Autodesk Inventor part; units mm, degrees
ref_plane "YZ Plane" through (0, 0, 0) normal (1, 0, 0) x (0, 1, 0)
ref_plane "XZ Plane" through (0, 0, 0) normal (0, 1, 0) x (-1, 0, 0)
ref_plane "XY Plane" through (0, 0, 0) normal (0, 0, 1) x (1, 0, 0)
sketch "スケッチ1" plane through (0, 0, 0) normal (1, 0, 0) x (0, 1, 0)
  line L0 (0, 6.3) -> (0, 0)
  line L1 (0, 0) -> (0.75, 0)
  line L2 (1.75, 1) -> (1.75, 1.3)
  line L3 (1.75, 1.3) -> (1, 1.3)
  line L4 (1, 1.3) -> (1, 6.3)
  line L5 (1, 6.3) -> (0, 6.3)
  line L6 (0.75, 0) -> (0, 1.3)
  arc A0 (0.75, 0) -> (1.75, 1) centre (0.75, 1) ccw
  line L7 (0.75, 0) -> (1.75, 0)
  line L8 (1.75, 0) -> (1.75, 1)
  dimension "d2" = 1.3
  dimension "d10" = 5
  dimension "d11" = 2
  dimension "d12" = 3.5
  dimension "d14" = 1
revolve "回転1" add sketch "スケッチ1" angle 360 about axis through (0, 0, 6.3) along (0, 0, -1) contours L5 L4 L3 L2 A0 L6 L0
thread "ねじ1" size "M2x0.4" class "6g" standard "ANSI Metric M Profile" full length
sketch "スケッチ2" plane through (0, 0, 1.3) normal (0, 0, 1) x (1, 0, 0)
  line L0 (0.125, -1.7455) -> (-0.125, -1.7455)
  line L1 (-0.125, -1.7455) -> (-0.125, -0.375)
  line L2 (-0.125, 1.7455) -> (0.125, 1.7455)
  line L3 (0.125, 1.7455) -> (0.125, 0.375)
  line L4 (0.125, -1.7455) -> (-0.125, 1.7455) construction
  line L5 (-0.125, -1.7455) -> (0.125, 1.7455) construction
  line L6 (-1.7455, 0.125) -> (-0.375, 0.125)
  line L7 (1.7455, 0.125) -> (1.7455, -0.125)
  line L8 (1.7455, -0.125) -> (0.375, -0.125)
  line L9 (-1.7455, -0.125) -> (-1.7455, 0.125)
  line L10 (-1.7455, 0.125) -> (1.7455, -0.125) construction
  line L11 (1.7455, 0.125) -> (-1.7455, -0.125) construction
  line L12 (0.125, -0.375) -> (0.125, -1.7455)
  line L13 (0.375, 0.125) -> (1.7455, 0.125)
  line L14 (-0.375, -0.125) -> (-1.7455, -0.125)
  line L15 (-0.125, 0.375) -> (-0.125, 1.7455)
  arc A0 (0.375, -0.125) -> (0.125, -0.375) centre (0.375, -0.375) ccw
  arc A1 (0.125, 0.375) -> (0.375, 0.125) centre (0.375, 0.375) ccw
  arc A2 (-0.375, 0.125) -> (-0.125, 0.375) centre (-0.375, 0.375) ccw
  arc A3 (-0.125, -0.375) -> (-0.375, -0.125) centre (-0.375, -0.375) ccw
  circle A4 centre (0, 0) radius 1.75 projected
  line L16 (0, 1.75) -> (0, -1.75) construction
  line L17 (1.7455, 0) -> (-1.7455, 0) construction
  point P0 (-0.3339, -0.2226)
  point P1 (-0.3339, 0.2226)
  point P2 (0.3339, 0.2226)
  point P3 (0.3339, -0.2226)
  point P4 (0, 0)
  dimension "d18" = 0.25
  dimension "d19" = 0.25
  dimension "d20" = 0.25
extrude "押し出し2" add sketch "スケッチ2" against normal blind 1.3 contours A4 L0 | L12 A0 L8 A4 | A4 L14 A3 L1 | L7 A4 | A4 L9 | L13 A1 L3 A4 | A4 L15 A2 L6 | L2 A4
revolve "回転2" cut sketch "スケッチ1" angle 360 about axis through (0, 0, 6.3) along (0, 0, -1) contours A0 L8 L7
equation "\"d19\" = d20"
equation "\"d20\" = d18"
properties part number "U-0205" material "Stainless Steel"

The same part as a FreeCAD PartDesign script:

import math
import FreeCAD as App
import Part
import Sketcher

V = App.Vector
Q = App.Units.Quantity

doc = App.newDocument("Part")
params = doc.addObject("Spreadsheet::Sheet", "Params")
for row, (alias, value) in enumerate([
    ("sketch1_radius", "1 mm"),
    ("sketch1_width", "1 mm"),
    ("sketch1_height", "5 mm"),
    ("sketch1_width2", "0.75 mm"),
    ("revolution_angle", "360 deg"),
    ("sketch2_radius", "0.25 mm"),
    ("sketch2_width", "0.25 mm"),
    ("sketch2_radius2", "1.75 mm"),
    ("pad1_length", "1.3 mm"),
    ("sketch3_radius", "1 mm"),
    ("groove_angle", "360 deg"),
], start=1):
    params.set(f"A{row}", alias)
    params.set(f"B{row}", "=" + value)
    params.setAlias(f"B{row}", alias)

body = doc.addObject("PartDesign::Body", "Body")

sketch1 = body.newObject("Sketcher::SketchObject", "Sketch")
sketch1.AttachmentSupport = (doc.getObject("YZ_Plane"), [""])
sketch1.MapMode = "FlatFace"
sketch1.addGeometry([
    Part.LineSegment(V(1, 6.3, 0), V(0, 6.3, 0)),
    Part.LineSegment(V(0, 6.3, 0), V(0, 1.3, 0)),
    Part.LineSegment(V(0, 1.3, 0), V(0.75, 0, 0)),
    Part.ArcOfCircle(Part.Circle(V(0.75, 1, 0), V(0, 0, 1), 1), math.radians(-90), math.radians(0)),
    Part.LineSegment(V(1.75, 1, 0), V(1.75, 1.3, 0)),
    Part.LineSegment(V(1.75, 1.3, 0), V(1, 1.3, 0)),
    Part.LineSegment(V(1, 1.3, 0), V(1, 6.3, 0)),
], False)
sketch1.addConstraint([
    Sketcher.Constraint("Coincident", 0, 2, 1, 1),
    Sketcher.Constraint("Coincident", 1, 2, 2, 1),
    Sketcher.Constraint("Coincident", 2, 2, 3, 1),
    Sketcher.Constraint("Tangent", 3, 2, 4, 1),
    Sketcher.Constraint("Coincident", 4, 2, 5, 1),
    Sketcher.Constraint("Coincident", 5, 2, 6, 1),
    Sketcher.Constraint("Coincident", 6, 2, 0, 1),
    Sketcher.Constraint("Horizontal", 0),
    Sketcher.Constraint("Vertical", 1),
    Sketcher.Constraint("Vertical", 4),
    Sketcher.Constraint("Horizontal", 5),
    Sketcher.Constraint("Vertical", 6),
    Sketcher.Constraint("PointOnObject", 0, 2, -2),
    Sketcher.Constraint("PointOnObject", 2, 2, -1),
    Sketcher.Constraint("Horizontal", 1, 2, 4, 2),
    Sketcher.Constraint("Vertical", 3, 3, 2, 2),
    Sketcher.Constraint("Radius", 3, Q("1 mm")),
    Sketcher.Constraint("DistanceX", 0, 2, 0, 1, Q("1 mm")),
    Sketcher.Constraint("DistanceY", 1, 2, 1, 1, Q("5 mm")),
    Sketcher.Constraint("DistanceY", -1, 1, 1, 2, Q("1.3 mm")),
    Sketcher.Constraint("DistanceX", 5, 2, 5, 1, Q("0.75 mm")),
])
sketch1.setExpression("Constraints[16]", "Params.sketch1_radius")
sketch1.setExpression("Constraints[17]", "Params.sketch1_width")
sketch1.setExpression("Constraints[18]", "Params.sketch1_height")
sketch1.setExpression("Constraints[20]", "Params.sketch1_width2")
revolution = body.newObject("PartDesign::Revolution", "Revolution")
revolution.Profile = sketch1
revolution.ReferenceAxis = (sketch1, ["V_Axis"])
revolution.setExpression("Angle", "Params.revolution_angle")

sketch2 = body.newObject("Sketcher::SketchObject", "Sketch001")
sketch2.AttachmentSupport = (doc.getObject("XY_Plane"), [""])
sketch2.MapMode = "FlatFace"
sketch2.AttachmentOffset = App.Placement(V(0, 0, 1.3), App.Rotation())
sketch2.addGeometry([
    Part.ArcOfCircle(Part.Circle(V(0, 0, 0), V(0, 0, 1), 1.75), math.radians(-94.096114), math.radians(-85.903886)),
    Part.LineSegment(V(-0.125, -1.7455, 0), V(0.125, -1.7455, 0)),
    Part.LineSegment(V(0.125, -0.375, 0), V(0.125, -1.7455, 0)),
    Part.ArcOfCircle(Part.Circle(V(0, 0, 0), V(0, 0, 1), 1.75), math.radians(-85.903886), math.radians(-4.096114)),
    Part.LineSegment(V(1.7455, -0.125, 0), V(0.375, -0.125, 0)),
    Part.ArcOfCircle(Part.Circle(V(0.375, -0.375, 0), V(0, 0, 1), 0.25), math.radians(90), math.radians(180)),
    Part.ArcOfCircle(Part.Circle(V(0, 0, 0), V(0, 0, 1), 1.75), math.radians(-175.903886), math.radians(-94.096114)),
    Part.LineSegment(V(-0.125, -1.7455, 0), V(-0.125, -0.375, 0)),
    Part.ArcOfCircle(Part.Circle(V(-0.375, -0.375, 0), V(0, 0, 1), 0.25), math.radians(0), math.radians(90)),
    Part.LineSegment(V(-0.375, -0.125, 0), V(-1.7455, -0.125, 0)),
    Part.LineSegment(V(1.7455, 0.125, 0), V(1.7455, -0.125, 0)),
    Part.ArcOfCircle(Part.Circle(V(0, 0, 0), V(0, 0, 1), 1.75), math.radians(-4.096114), math.radians(4.096114)),
    Part.ArcOfCircle(Part.Circle(V(0, 0, 0), V(0, 0, 1), 1.75), math.radians(175.903886), math.radians(184.096114)),
    Part.LineSegment(V(-1.7455, 0.125, 0), V(-1.7455, -0.125, 0)),
    Part.LineSegment(V(0.375, 0.125, 0), V(1.7455, 0.125, 0)),
    Part.ArcOfCircle(Part.Circle(V(0, 0, 0), V(0, 0, 1), 1.75), math.radians(4.096114), math.radians(85.903886)),
    Part.LineSegment(V(0.125, 1.7455, 0), V(0.125, 0.375, 0)),
    Part.ArcOfCircle(Part.Circle(V(0.375, 0.375, 0), V(0, 0, 1), 0.25), math.radians(180), math.radians(270)),
    Part.ArcOfCircle(Part.Circle(V(0, 0, 0), V(0, 0, 1), 1.75), math.radians(94.096114), math.radians(175.903886)),
    Part.LineSegment(V(-1.7455, 0.125, 0), V(-0.375, 0.125, 0)),
    Part.ArcOfCircle(Part.Circle(V(-0.375, 0.375, 0), V(0, 0, 1), 0.25), math.radians(-90), math.radians(0)),
    Part.LineSegment(V(-0.125, 0.375, 0), V(-0.125, 1.7455, 0)),
    Part.LineSegment(V(-0.125, 1.7455, 0), V(0.125, 1.7455, 0)),
    Part.ArcOfCircle(Part.Circle(V(0, 0, 0), V(0, 0, 1), 1.75), math.radians(85.903886), math.radians(94.096114)),
], False)
sketch2.addConstraint([
    Sketcher.Constraint("Coincident", 0, 1, 1, 1),
    Sketcher.Constraint("Coincident", 1, 2, 0, 2),
    Sketcher.Constraint("Coincident", 2, 2, 3, 1),
    Sketcher.Constraint("Coincident", 3, 2, 4, 1),
    Sketcher.Constraint("Tangent", 4, 2, 5, 1),
    Sketcher.Constraint("Tangent", 5, 2, 2, 1),
    Sketcher.Constraint("Coincident", 6, 2, 7, 1),
    Sketcher.Constraint("Tangent", 7, 2, 8, 1),
    Sketcher.Constraint("Tangent", 8, 2, 9, 1),
    Sketcher.Constraint("Coincident", 9, 2, 6, 1),
    Sketcher.Constraint("Coincident", 10, 1, 11, 2),
    Sketcher.Constraint("Coincident", 11, 1, 10, 2),
    Sketcher.Constraint("Coincident", 12, 1, 13, 1),
    Sketcher.Constraint("Coincident", 13, 2, 12, 2),
    Sketcher.Constraint("Coincident", 14, 2, 15, 1),
    Sketcher.Constraint("Coincident", 15, 2, 16, 1),
    Sketcher.Constraint("Tangent", 16, 2, 17, 1),
    Sketcher.Constraint("Tangent", 17, 2, 14, 1),
    Sketcher.Constraint("Coincident", 18, 2, 19, 1),
    Sketcher.Constraint("Tangent", 19, 2, 20, 1),
    Sketcher.Constraint("Tangent", 20, 2, 21, 1),
    Sketcher.Constraint("Coincident", 21, 2, 18, 1),
    Sketcher.Constraint("Coincident", 22, 1, 23, 2),
    Sketcher.Constraint("Coincident", 23, 1, 22, 2),
    Sketcher.Constraint("Horizontal", 1),
    Sketcher.Constraint("Vertical", 2),
    Sketcher.Constraint("Horizontal", 4),
    Sketcher.Constraint("Vertical", 7),
    Sketcher.Constraint("Horizontal", 9),
    Sketcher.Constraint("Vertical", 10),
    Sketcher.Constraint("Vertical", 13),
    Sketcher.Constraint("Horizontal", 14),
    Sketcher.Constraint("Vertical", 16),
    Sketcher.Constraint("Horizontal", 19),
    Sketcher.Constraint("Vertical", 21),
    Sketcher.Constraint("Horizontal", 22),
    Sketcher.Constraint("Coincident", 0, 3, -1, 1),
    Sketcher.Constraint("Coincident", 3, 3, -1, 1),
    Sketcher.Constraint("Coincident", 6, 3, -1, 1),
    Sketcher.Constraint("Coincident", 11, 3, -1, 1),
    Sketcher.Constraint("Coincident", 12, 3, -1, 1),
    Sketcher.Constraint("Coincident", 15, 3, -1, 1),
    Sketcher.Constraint("Coincident", 18, 3, -1, 1),
    Sketcher.Constraint("Coincident", 23, 3, -1, 1),
    Sketcher.Constraint("Coincident", 2, 2, 1, 2),
    Sketcher.Constraint("Coincident", 6, 2, 0, 1),
    Sketcher.Constraint("Coincident", 11, 1, 3, 2),
    Sketcher.Constraint("Coincident", 13, 2, 9, 2),
    Sketcher.Constraint("Coincident", 14, 2, 10, 1),
    Sketcher.Constraint("Coincident", 18, 2, 12, 1),
    Sketcher.Constraint("Coincident", 22, 1, 21, 2),
    Sketcher.Constraint("Equal", 5, 8),
    Sketcher.Constraint("Equal", 8, 17),
    Sketcher.Constraint("Equal", 17, 20),
    Sketcher.Constraint("Symmetric", 8, 3, 17, 3, -1, 1),
    Sketcher.Constraint("Horizontal", 15, 2, 21, 2),
    Sketcher.Constraint("Equal", 19, 2),
    Sketcher.Constraint("Radius", 5, Q("0.25 mm")),
    Sketcher.Constraint("DistanceX", 1, 1, 1, 2, Q("0.25 mm")),
    Sketcher.Constraint("Radius", 0, Q("1.75 mm")),
])
sketch2.setExpression("Constraints[57]", "Params.sketch2_radius")
sketch2.setExpression("Constraints[58]", "Params.sketch2_width")
sketch2.setExpression("Constraints[59]", "Params.sketch2_radius2")
pad1 = body.newObject("PartDesign::Pad", "Pad")
pad1.Profile = sketch2
pad1.setExpression("Length", "Params.pad1_length")
pad1.Reversed = True

sketch3 = body.newObject("Sketcher::SketchObject", "Sketch002")
sketch3.AttachmentSupport = (doc.getObject("YZ_Plane"), [""])
sketch3.MapMode = "FlatFace"
sketch3.addGeometry([
    Part.ArcOfCircle(Part.Circle(V(0.75, 1, 0), V(0, 0, 1), 1), math.radians(-90), math.radians(0)),
    Part.LineSegment(V(0.75, 0, 0), V(1.75, 0, 0)),
    Part.LineSegment(V(1.75, 0, 0), V(1.75, 1, 0)),
], False)
sketch3.addConstraint([
    Sketcher.Constraint("Tangent", 0, 1, 1, 1),
    Sketcher.Constraint("Coincident", 1, 2, 2, 1),
    Sketcher.Constraint("Tangent", 2, 2, 0, 2),
    Sketcher.Constraint("Horizontal", 1),
    Sketcher.Constraint("Vertical", 2),
    Sketcher.Constraint("PointOnObject", 0, 1, -1),
    Sketcher.Constraint("Radius", 0, Q("1 mm")),
    Sketcher.Constraint("DistanceX", -1, 1, 0, 3, Q("0.75 mm")),
])
sketch3.setExpression("Constraints[6]", "Params.sketch3_radius")
groove = body.newObject("PartDesign::Groove", "Groove")
groove.Profile = sketch3
groove.ReferenceAxis = (sketch3, ["V_Axis"])
groove.setExpression("Angle", "Params.groove_angle")

doc.recompute()
